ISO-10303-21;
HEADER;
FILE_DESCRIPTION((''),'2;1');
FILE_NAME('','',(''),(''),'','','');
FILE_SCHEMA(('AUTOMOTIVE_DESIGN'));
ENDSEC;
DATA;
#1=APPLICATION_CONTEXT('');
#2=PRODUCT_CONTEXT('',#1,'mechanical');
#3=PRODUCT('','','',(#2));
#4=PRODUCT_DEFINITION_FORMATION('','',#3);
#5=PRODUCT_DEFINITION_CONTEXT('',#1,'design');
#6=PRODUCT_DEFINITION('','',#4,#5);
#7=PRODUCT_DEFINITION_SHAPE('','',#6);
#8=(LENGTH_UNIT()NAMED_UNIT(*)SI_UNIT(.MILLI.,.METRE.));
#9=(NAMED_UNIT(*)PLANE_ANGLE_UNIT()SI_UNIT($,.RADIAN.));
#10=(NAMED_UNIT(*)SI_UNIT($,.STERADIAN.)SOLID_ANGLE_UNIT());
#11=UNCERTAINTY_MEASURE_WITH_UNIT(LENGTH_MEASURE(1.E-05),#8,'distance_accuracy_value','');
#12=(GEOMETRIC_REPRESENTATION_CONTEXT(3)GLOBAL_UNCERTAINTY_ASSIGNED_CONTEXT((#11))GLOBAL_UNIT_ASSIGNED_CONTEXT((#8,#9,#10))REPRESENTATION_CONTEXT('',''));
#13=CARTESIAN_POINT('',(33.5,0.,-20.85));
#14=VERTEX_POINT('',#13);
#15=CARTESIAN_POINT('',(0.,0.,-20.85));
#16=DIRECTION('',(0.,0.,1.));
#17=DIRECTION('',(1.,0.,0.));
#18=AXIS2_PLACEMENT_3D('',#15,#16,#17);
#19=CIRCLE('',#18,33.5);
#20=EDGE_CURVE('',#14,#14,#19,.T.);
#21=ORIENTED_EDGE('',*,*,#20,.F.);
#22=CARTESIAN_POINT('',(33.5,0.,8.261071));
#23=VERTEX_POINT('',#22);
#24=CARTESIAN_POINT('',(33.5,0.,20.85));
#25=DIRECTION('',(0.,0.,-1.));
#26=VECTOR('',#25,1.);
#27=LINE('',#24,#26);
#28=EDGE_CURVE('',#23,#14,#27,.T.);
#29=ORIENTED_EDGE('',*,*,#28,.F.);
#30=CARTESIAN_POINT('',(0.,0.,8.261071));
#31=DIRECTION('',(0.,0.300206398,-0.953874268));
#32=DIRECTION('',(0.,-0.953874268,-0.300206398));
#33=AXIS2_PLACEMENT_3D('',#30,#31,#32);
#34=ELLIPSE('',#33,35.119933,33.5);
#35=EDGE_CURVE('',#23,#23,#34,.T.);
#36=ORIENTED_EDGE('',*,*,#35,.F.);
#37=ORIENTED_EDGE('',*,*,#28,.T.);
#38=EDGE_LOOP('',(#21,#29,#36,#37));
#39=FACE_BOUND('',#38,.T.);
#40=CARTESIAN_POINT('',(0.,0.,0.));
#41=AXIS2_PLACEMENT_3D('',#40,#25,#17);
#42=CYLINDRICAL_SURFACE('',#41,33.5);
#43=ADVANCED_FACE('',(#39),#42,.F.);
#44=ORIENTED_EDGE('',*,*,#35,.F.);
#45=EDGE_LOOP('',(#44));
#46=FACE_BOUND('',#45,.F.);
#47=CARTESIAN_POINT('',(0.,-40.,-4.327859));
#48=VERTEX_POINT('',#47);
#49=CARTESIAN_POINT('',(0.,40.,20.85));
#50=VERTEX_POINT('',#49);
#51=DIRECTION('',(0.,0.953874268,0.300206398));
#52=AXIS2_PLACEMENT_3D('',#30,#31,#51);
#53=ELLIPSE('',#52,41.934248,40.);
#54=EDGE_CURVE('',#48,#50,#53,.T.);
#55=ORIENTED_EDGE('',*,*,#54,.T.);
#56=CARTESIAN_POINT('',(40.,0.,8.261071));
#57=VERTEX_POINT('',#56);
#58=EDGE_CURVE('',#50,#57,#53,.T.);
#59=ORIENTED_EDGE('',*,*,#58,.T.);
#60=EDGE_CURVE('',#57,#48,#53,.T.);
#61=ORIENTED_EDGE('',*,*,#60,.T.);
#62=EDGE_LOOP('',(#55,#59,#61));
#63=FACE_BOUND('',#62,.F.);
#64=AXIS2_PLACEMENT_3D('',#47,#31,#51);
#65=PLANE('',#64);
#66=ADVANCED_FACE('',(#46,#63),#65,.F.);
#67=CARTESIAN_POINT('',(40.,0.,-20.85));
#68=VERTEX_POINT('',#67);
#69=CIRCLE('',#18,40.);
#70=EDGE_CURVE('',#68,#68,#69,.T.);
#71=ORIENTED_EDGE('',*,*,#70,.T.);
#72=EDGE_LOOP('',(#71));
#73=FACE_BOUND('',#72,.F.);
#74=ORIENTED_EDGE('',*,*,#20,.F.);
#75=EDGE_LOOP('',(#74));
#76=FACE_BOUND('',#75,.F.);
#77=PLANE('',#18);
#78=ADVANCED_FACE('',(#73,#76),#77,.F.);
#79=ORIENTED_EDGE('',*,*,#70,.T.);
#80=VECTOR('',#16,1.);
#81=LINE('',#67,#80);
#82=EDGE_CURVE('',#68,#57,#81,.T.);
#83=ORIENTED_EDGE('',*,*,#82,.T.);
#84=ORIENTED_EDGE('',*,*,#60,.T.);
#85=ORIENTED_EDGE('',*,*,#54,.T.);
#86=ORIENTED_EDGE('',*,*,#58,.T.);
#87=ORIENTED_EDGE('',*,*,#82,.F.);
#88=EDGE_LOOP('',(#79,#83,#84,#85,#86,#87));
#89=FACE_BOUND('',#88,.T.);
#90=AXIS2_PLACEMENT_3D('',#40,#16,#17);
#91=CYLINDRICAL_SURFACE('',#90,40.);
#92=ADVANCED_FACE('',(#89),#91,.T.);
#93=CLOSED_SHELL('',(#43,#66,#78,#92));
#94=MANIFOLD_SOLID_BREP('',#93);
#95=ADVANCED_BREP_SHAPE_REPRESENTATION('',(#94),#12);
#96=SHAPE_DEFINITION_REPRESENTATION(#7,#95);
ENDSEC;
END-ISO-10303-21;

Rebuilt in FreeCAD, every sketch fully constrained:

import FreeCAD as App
import Part
import Sketcher
Q = App.Units.Quantity

doc = App.newDocument("Part")
body = doc.addObject("PartDesign::Body", "Body")

sketch1 = body.newObject("Sketcher::SketchObject", "Sketch")
sketch1.AttachmentSupport = (doc.getObject("XY_Plane"), [""])
sketch1.MapMode = "FlatFace"
sketch1.addGeometry(Part.Circle(App.Vector(0, 0, 0), App.Vector(0, 0, 1), 40), False)
sketch1.addGeometry(Part.Circle(App.Vector(0, 0, 0), App.Vector(0, 0, 1), 34), False)
sketch1.addConstraint(Sketcher.Constraint("Coincident", 0, 3, -1, 1))
sketch1.addConstraint(Sketcher.Constraint("Coincident", 1, 3, -1, 1))
sketch1.addConstraint(Sketcher.Constraint("Diameter", 0, Q("80 mm")))
sketch1.addConstraint(Sketcher.Constraint("Diameter", 1, Q("67 mm")))
pad1 = body.newObject("PartDesign::Pad", "Pad")
pad1.Profile = sketch1
pad1.Length = 41.7
pad1.Midplane = True

sketch2 = body.newObject("Sketcher::SketchObject", "Sketch001")
sketch2.AttachmentSupport = (doc.getObject("YZ_Plane"), [""])
sketch2.MapMode = "FlatFace"
sketch2.addGeometry(Part.LineSegment(App.Vector(-40, -4, 0), App.Vector(40, 21, 0)), False)
sketch2.addGeometry(Part.LineSegment(App.Vector(40, 21, 0), App.Vector(-40, 21, 0)), False)
sketch2.addGeometry(Part.LineSegment(App.Vector(-40, 21, 0), App.Vector(-40, -4, 0)), False)
sketch2.addConstraint(Sketcher.Constraint("Coincident", 0, 2, 1, 1))
sketch2.addConstraint(Sketcher.Constraint("Coincident", 1, 2, 2, 1))
sketch2.addConstraint(Sketcher.Constraint("Coincident", 2, 2, 0, 1))
sketch2.addConstraint(Sketcher.Constraint("Horizontal", 1))
sketch2.addConstraint(Sketcher.Constraint("Vertical", 2))
sketch2.addConstraint(Sketcher.Constraint("DistanceX", 1, 2, 1, 1, Q("80 mm")))
sketch2.addConstraint(Sketcher.Constraint("DistanceX", -1, 1, 0, 2, Q("40 mm")))
sketch2.addConstraint(Sketcher.Constraint("Angle", 0, Q("17.47 deg")))
sketch2.addConstraint(Sketcher.Constraint("DistanceY", -1, 1, 0, 2, Q("20.85 mm")))
pocket1 = body.newObject("PartDesign::Pocket", "Pocket")
pocket1.Profile = sketch2
pocket1.Length = 90
pocket1.Midplane = True

doc.recompute()
